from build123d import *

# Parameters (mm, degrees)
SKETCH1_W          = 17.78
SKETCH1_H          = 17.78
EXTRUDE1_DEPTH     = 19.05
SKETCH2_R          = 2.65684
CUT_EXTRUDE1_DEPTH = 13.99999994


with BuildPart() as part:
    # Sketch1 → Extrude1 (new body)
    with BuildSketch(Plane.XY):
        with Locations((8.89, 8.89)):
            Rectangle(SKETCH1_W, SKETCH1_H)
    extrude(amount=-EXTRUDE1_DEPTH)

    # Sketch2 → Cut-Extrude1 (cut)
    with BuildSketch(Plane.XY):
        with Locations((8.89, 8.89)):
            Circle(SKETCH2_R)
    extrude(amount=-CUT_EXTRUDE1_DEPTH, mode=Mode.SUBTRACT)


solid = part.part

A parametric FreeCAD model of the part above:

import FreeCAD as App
import Part
import Sketcher

V = App.Vector
Q = App.Units.Quantity

doc = App.newDocument("Part")
params = doc.addObject("Spreadsheet::Sheet", "Params")
for row, (alias, value) in enumerate([
    ("sketch1_width", "0.7 in"),
    ("pad1_length", "0.75 in"),
    ("pocket1_length", "14 mm"),
], start=1):
    params.set(f"A{row}", alias)
    params.set(f"B{row}", "=" + value)
    params.setAlias(f"B{row}", alias)

body = doc.addObject("PartDesign::Body", "Body")

sketch1 = body.newObject("Sketcher::SketchObject", "Sketch")
sketch1.AttachmentSupport = (doc.getObject("XY_Plane"), [""])
sketch1.MapMode = "FlatFace"
sketch1.addGeometry(Part.LineSegment(V(0, 18, 0), V(0, 0, 0)), False)
sketch1.addGeometry(Part.LineSegment(V(0, 0, 0), V(18, 0, 0)), False)
sketch1.addGeometry(Part.LineSegment(V(18, 0, 0), V(18, 18, 0)), False)
sketch1.addGeometry(Part.LineSegment(V(18, 18, 0), V(0, 18, 0)), False)
sketch1.addConstraint(Sketcher.Constraint("Coincident", 0, 2, 1, 1))
sketch1.addConstraint(Sketcher.Constraint("Coincident", 1, 2, 2, 1))
sketch1.addConstraint(Sketcher.Constraint("Coincident", 2, 2, 3, 1))
sketch1.addConstraint(Sketcher.Constraint("Coincident", 3, 2, 0, 1))
sketch1.addConstraint(Sketcher.Constraint("Vertical", 0))
sketch1.addConstraint(Sketcher.Constraint("Horizontal", 1))
sketch1.addConstraint(Sketcher.Constraint("Vertical", 2))
sketch1.addConstraint(Sketcher.Constraint("Horizontal", 3))
sketch1.addConstraint(Sketcher.Constraint("Coincident", 0, 2, -1, 1))
sketch1.addConstraint(Sketcher.Constraint("Equal", 3, 0))
sketch1.addConstraint(Sketcher.Constraint("DistanceX", 1, 1, 1, 2, Q("0.7 in")))
sketch1.setExpression("Constraints[10]", "Params.sketch1_width")
pad1 = body.newObject("PartDesign::Pad", "Pad")
pad1.Profile = sketch1
pad1.setExpression("Length", "Params.pad1_length")
pad1.Reversed = True

sketch2 = body.newObject("Sketcher::SketchObject", "Sketch001")
sketch2.AttachmentSupport = (doc.getObject("XY_Plane"), [""])
sketch2.MapMode = "FlatFace"
sketch2.addGeometry(Part.Circle(V(8.9, 8.9, 0), V(0, 0, 1), 2.7), False)
sketch2.addConstraint(Sketcher.Constraint("Diameter", 0, Q("0.2092 in")))
sketch2.addConstraint(Sketcher.Constraint("DistanceX", -1, 1, 0, 3, Q("0.35 in")))
sketch2.addConstraint(Sketcher.Constraint("DistanceY", -1, 1, 0, 3, Q("0.35 in")))
pocket1 = body.newObject("PartDesign::Pocket", "Pocket")
pocket1.Profile = sketch2
pocket1.setExpression("Length", "Params.pocket1_length")

doc.recompute()
